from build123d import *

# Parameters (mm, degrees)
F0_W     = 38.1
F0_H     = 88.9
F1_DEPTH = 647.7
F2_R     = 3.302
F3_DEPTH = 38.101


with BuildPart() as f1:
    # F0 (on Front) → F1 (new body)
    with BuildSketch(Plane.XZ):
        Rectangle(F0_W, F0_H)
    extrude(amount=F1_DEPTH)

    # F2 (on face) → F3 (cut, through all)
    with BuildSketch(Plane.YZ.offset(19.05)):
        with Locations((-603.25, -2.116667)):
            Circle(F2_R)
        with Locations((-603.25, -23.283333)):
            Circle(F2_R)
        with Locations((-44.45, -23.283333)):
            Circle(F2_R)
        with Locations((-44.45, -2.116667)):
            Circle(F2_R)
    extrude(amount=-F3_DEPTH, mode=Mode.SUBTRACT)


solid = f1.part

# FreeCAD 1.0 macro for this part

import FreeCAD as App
import Part
import Sketcher
Q = App.Units.Quantity


def add_polygon(sketch, points):
    """Adds a closed chain of lines whose ends are joined by coincident constraints."""
    first, n = sketch.GeometryCount, len(points)
    for a, b in zip(points, points[1:] + points[:1]):
        sketch.addGeometry(Part.LineSegment(App.Vector(*a, 0), App.Vector(*b, 0)), False)
    for i in range(n):
        sketch.addConstraint(Sketcher.Constraint("Coincident", first + i, 2, first + (i + 1) % n, 1))

doc = App.newDocument("Part")
params = doc.addObject("Spreadsheet::Sheet", "Params")
for row, (alias, value) in enumerate([
    ("sketch1_width", "1.5 in"),
    ("sketch1_height", "3.5 in"),
    ("pad1_length", "25.5 in"),
    ("sketch2_diameter", "0.26 in"),
], start=1):
    params.set(f"A{row}", alias)
    params.set(f"B{row}", "=" + value)
    params.setAlias(f"B{row}", alias)

body = doc.addObject("PartDesign::Body", "Body")

# Sketch on XZ plane
sketch1 = body.newObject("Sketcher::SketchObject", "Sketch")
sketch1.AttachmentSupport = (doc.getObject("XZ_Plane"), [""])
sketch1.MapMode = "FlatFace"
add_polygon(sketch1, [(-19, 44), (-19, -44), (19, -44), (19, 44)])  # lines 0-3
sketch1.addConstraint([
    Sketcher.Constraint("Vertical", 0),
    Sketcher.Constraint("Horizontal", 1),
    Sketcher.Constraint("Vertical", 2),
    Sketcher.Constraint("Horizontal", 3),
    Sketcher.Constraint("Symmetric", 0, 2, 2, 2, -1, 1),
    Sketcher.Constraint("DistanceX", 1, 1, 1, 2, Q("1.5 in")),
    Sketcher.Constraint("DistanceY", 0, 2, 0, 1, Q("3.5 in")),
])
sketch1.setExpression("Constraints[9]", "Params.sketch1_width")
sketch1.setExpression("Constraints[10]", "Params.sketch1_height")
pad1 = body.newObject("PartDesign::Pad", "Pad")
pad1.Profile = sketch1
pad1.setExpression("Length", "Params.pad1_length")

# Sketch on YZ plane
sketch2 = body.newObject("Sketcher::SketchObject", "Sketch001")
sketch2.AttachmentSupport = (doc.getObject("YZ_Plane"), [""])
sketch2.MapMode = "FlatFace"
sketch2.AttachmentOffset = App.Placement(App.Vector(0, 0, 0.75 * 25.4), App.Rotation())
sketch2.addGeometry([
    Part.Circle(App.Vector(-603.2, -2.1, 0), App.Vector(0, 0, 1), 3.3),
    Part.Circle(App.Vector(-603.2, -23.3, 0), App.Vector(0, 0, 1), 3.3),
    Part.Circle(App.Vector(-44.5, -23.3, 0), App.Vector(0, 0, 1), 3.3),
    Part.Circle(App.Vector(-44.5, -2.1, 0), App.Vector(0, 0, 1), 3.3),
], False)
sketch2.addConstraint([
    Sketcher.Constraint("Equal", 0, 1),
    Sketcher.Constraint("Equal", 1, 2),
    Sketcher.Constraint("Equal", 2, 3),
    Sketcher.Constraint("Horizontal", 1, 3, 2, 3),
    Sketcher.Constraint("Horizontal", 0, 3, 3, 3),
    Sketcher.Constraint("Vertical", 0, 3, 1, 3),
    Sketcher.Constraint("Vertical", 2, 3, 3, 3),
    Sketcher.Constraint("Diameter", 0, Q("0.26 in")),
    Sketcher.Constraint("DistanceX", 1, 3, 2, 3, Q("22 in")),
    Sketcher.Constraint("DistanceX", 0, 3, -1, 1, Q("23.75 in")),
    Sketcher.Constraint("DistanceY", 0, 3, -1, 1, 2.116667),
    Sketcher.Constraint("DistanceY", 1, 3, -1, 1, 23.283333),
])
sketch2.setExpression("Constraints[7]", "Params.sketch2_diameter")
pocket1 = body.newObject("PartDesign::Pocket", "Pocket")
pocket1.Profile = sketch2
pocket1.Type = "ThroughAll"

doc.recompute()
